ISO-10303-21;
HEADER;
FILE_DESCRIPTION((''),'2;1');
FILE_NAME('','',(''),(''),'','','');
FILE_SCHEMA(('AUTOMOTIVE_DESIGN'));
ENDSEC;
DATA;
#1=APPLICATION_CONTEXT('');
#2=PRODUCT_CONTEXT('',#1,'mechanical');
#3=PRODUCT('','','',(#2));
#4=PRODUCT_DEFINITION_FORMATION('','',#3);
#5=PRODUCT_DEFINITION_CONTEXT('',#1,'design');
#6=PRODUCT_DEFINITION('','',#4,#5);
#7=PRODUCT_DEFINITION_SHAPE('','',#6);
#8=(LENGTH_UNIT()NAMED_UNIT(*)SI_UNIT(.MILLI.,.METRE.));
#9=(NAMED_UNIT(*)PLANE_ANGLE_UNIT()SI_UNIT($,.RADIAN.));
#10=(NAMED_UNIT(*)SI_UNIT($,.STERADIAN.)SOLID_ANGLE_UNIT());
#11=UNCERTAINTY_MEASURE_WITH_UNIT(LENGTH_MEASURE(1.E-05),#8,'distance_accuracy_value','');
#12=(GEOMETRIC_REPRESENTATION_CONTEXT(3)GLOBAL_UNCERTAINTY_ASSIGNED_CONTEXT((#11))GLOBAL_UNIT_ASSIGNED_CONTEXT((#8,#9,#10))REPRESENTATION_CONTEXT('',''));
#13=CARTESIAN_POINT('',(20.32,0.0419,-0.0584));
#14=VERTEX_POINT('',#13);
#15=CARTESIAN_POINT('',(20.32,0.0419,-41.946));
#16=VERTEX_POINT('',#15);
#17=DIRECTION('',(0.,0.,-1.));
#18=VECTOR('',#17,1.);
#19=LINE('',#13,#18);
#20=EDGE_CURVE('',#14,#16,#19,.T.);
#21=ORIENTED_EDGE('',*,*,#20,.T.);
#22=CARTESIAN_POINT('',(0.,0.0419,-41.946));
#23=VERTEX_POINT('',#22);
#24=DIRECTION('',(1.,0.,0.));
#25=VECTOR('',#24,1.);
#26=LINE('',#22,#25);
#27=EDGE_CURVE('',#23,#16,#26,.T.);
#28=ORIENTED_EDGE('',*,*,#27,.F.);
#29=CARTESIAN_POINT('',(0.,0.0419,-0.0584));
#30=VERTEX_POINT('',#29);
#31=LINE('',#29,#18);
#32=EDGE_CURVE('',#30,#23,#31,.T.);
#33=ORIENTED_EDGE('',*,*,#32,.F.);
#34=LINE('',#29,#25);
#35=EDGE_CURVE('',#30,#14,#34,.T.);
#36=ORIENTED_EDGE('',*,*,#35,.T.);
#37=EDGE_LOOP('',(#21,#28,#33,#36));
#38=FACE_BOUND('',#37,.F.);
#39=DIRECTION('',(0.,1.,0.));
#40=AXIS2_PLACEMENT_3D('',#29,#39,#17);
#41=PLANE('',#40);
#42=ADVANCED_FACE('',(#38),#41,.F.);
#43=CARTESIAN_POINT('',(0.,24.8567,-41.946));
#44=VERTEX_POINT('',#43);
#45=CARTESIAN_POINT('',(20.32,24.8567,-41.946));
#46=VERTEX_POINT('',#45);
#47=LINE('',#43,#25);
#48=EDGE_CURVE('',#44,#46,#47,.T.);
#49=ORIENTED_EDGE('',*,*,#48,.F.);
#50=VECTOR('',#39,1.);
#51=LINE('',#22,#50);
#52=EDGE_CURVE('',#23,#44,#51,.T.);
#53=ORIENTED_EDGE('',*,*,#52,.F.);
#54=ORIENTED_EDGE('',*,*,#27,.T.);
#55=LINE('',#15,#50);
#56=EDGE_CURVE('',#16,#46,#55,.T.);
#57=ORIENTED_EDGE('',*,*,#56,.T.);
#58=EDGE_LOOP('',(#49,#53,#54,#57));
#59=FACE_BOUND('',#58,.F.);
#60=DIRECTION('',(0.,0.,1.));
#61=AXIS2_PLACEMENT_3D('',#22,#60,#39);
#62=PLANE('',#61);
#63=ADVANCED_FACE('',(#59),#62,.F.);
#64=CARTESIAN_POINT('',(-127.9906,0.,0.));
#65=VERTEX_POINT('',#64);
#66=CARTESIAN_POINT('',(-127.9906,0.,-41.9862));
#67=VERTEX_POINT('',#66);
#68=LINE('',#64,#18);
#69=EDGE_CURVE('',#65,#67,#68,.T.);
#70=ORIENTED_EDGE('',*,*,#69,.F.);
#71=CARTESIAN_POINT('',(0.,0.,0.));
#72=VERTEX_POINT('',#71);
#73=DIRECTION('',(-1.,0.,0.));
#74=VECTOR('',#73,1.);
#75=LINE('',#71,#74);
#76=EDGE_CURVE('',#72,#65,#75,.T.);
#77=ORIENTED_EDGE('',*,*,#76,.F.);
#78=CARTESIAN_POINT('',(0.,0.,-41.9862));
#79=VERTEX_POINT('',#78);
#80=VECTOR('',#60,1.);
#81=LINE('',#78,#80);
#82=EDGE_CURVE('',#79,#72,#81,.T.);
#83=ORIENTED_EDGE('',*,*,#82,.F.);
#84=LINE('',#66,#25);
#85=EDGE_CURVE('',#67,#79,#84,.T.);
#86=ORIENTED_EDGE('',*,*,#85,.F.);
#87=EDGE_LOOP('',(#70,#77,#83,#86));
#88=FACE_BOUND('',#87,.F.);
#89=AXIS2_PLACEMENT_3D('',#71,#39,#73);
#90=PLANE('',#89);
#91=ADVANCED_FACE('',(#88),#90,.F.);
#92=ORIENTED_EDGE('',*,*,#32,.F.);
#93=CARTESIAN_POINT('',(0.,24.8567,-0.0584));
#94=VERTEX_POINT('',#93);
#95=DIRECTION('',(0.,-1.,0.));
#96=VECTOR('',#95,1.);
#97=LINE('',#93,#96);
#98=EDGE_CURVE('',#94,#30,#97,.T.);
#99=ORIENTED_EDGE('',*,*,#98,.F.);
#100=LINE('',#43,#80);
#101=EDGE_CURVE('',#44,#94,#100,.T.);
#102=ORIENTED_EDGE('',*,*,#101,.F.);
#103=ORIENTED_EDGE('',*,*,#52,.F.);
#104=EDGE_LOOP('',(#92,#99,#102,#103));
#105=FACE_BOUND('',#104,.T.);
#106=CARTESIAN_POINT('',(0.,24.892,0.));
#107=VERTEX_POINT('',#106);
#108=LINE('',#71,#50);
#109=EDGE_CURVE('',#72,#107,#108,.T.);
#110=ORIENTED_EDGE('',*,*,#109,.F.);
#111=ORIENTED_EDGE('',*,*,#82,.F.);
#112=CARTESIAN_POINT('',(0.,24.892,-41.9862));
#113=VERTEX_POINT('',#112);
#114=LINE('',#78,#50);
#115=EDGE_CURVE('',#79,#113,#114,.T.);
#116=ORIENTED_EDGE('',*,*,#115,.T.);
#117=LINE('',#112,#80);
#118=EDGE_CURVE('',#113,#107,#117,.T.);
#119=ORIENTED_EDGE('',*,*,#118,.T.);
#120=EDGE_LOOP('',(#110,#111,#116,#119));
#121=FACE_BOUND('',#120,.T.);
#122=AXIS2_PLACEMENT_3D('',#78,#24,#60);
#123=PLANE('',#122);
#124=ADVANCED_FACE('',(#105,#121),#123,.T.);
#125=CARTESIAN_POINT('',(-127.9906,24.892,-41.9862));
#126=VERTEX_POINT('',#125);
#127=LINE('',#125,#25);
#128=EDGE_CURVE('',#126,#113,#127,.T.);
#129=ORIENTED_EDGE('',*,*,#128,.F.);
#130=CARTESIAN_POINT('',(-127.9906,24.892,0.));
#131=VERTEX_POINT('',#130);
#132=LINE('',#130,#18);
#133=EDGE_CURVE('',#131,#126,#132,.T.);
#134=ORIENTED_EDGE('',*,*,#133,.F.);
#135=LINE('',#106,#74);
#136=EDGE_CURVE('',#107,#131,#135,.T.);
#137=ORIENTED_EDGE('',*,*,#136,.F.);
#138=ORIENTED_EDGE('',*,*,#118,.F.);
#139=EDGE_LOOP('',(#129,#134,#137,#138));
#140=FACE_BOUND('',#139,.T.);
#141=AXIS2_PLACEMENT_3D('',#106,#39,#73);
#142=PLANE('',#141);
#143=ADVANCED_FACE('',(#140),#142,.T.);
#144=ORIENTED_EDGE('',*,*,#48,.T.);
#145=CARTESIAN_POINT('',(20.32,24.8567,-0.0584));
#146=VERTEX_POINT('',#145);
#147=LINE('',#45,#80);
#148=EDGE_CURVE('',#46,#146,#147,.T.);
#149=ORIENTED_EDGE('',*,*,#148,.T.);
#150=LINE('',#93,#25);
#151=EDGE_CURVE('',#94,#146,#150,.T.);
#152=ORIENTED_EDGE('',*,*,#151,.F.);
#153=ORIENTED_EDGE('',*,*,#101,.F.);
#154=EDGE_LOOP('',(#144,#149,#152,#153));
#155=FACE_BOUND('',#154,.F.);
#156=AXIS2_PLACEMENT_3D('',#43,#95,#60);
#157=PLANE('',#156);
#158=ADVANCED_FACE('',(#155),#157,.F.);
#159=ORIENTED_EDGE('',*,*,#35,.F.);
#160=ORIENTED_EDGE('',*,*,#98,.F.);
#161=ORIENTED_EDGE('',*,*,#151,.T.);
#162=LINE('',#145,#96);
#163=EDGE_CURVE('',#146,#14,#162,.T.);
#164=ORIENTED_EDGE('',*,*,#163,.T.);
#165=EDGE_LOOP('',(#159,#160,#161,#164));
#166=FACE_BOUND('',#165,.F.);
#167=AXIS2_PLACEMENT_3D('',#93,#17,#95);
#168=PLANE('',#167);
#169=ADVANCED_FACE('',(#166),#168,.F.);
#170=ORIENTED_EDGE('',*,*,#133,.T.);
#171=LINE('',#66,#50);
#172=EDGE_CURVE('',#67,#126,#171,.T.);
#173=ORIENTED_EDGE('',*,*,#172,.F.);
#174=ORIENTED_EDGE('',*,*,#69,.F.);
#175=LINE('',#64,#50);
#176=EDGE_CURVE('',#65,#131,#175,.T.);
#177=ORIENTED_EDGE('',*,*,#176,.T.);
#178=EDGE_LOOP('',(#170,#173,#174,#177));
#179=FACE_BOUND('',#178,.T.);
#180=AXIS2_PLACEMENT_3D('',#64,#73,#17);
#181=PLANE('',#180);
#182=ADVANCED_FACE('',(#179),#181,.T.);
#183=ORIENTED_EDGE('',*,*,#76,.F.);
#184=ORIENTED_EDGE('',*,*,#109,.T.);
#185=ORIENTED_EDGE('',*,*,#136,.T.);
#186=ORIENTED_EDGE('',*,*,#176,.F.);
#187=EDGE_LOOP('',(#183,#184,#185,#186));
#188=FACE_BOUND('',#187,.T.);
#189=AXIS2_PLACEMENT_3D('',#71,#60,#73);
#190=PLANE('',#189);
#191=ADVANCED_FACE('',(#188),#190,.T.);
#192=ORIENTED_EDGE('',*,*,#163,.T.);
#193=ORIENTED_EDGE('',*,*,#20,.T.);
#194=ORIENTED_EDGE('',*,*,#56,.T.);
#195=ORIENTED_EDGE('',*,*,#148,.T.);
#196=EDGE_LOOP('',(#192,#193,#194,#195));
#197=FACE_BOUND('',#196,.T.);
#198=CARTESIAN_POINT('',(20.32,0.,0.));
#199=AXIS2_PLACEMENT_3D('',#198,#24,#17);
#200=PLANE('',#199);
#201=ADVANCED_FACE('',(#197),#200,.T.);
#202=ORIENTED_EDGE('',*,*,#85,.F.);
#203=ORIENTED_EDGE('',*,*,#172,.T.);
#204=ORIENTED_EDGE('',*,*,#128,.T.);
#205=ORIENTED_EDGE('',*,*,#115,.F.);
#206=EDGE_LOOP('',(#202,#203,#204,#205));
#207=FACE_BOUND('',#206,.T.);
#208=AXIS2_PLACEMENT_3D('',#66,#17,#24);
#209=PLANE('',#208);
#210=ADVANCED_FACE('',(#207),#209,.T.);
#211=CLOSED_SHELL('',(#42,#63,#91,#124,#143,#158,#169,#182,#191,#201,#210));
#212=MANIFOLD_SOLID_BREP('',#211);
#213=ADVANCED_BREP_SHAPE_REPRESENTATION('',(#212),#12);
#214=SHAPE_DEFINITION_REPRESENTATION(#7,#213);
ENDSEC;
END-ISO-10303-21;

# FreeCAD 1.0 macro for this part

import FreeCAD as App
import Part
import Sketcher
Q = App.Units.Quantity


def add_polygon(sketch, points):
    """Adds a closed chain of lines whose ends are joined by coincident constraints."""
    first, n = sketch.GeometryCount, len(points)
    for a, b in zip(points, points[1:] + points[:1]):
        sketch.addGeometry(Part.LineSegment(App.Vector(*a, 0), App.Vector(*b, 0)), False)
    for i in range(n):
        sketch.addConstraint(Sketcher.Constraint("Coincident", first + i, 2, first + (i + 1) % n, 1))

doc = App.newDocument("Part")
body = doc.addObject("PartDesign::Body", "Body")

sketch1 = body.newObject("Sketcher::SketchObject", "Sketch")
sketch1.AttachmentSupport = (doc.getObject("XZ_Plane"), [""])
sketch1.MapMode = "FlatFace"
add_polygon(sketch1, [(-128, 0), (0, 0), (0, -42), (-128, -42)])
sketch1.addConstraint(Sketcher.Constraint("Horizontal", 0))
sketch1.addConstraint(Sketcher.Constraint("Vertical", 1))
sketch1.addConstraint(Sketcher.Constraint("Horizontal", 2))
sketch1.addConstraint(Sketcher.Constraint("Vertical", 3))
sketch1.addConstraint(Sketcher.Constraint("Coincident", 0, 2, -1, 1))
sketch1.addConstraint(Sketcher.Constraint("DistanceX", 0, 1, 0, 2, Q("5.039 in")))
sketch1.addConstraint(Sketcher.Constraint("DistanceY", 1, 2, 1, 1, Q("1.653 in")))
pad1 = body.newObject("PartDesign::Pad", "Pad")
pad1.Profile = sketch1
pad1.Length = Q("0.98 in")
pad1.Reversed = True

sketch2 = body.newObject("Sketcher::SketchObject", "Sketch001")
sketch2.AttachmentSupport = (doc.getObject("YZ_Plane"), [""])
sketch2.MapMode = "FlatFace"
add_polygon(sketch2, [(25, 0), (0, 0), (0, -42), (25, -42)])
sketch2.addConstraint(Sketcher.Constraint("Horizontal", 0))
sketch2.addConstraint(Sketcher.Constraint("Vertical", 1))
sketch2.addConstraint(Sketcher.Constraint("Horizontal", 2))
sketch2.addConstraint(Sketcher.Constraint("Vertical", 3))
sketch2.addConstraint(Sketcher.Constraint("DistanceX", 0, 2, 0, 1, 24.8148))
sketch2.addConstraint(Sketcher.Constraint("DistanceY", 1, 2, 1, 1, 41.8876))
sketch2.addConstraint(Sketcher.Constraint("DistanceY", 0, 2, -1, 1, Q("0.0023 in")))
sketch2.addConstraint(Sketcher.Constraint("DistanceX", -1, 1, 2, 2, Q("0.9786 in")))
pad2 = body.newObject("PartDesign::Pad", "Pad001")
pad2.Profile = sketch2
pad2.Length = Q("0.8 in")

doc.recompute()
